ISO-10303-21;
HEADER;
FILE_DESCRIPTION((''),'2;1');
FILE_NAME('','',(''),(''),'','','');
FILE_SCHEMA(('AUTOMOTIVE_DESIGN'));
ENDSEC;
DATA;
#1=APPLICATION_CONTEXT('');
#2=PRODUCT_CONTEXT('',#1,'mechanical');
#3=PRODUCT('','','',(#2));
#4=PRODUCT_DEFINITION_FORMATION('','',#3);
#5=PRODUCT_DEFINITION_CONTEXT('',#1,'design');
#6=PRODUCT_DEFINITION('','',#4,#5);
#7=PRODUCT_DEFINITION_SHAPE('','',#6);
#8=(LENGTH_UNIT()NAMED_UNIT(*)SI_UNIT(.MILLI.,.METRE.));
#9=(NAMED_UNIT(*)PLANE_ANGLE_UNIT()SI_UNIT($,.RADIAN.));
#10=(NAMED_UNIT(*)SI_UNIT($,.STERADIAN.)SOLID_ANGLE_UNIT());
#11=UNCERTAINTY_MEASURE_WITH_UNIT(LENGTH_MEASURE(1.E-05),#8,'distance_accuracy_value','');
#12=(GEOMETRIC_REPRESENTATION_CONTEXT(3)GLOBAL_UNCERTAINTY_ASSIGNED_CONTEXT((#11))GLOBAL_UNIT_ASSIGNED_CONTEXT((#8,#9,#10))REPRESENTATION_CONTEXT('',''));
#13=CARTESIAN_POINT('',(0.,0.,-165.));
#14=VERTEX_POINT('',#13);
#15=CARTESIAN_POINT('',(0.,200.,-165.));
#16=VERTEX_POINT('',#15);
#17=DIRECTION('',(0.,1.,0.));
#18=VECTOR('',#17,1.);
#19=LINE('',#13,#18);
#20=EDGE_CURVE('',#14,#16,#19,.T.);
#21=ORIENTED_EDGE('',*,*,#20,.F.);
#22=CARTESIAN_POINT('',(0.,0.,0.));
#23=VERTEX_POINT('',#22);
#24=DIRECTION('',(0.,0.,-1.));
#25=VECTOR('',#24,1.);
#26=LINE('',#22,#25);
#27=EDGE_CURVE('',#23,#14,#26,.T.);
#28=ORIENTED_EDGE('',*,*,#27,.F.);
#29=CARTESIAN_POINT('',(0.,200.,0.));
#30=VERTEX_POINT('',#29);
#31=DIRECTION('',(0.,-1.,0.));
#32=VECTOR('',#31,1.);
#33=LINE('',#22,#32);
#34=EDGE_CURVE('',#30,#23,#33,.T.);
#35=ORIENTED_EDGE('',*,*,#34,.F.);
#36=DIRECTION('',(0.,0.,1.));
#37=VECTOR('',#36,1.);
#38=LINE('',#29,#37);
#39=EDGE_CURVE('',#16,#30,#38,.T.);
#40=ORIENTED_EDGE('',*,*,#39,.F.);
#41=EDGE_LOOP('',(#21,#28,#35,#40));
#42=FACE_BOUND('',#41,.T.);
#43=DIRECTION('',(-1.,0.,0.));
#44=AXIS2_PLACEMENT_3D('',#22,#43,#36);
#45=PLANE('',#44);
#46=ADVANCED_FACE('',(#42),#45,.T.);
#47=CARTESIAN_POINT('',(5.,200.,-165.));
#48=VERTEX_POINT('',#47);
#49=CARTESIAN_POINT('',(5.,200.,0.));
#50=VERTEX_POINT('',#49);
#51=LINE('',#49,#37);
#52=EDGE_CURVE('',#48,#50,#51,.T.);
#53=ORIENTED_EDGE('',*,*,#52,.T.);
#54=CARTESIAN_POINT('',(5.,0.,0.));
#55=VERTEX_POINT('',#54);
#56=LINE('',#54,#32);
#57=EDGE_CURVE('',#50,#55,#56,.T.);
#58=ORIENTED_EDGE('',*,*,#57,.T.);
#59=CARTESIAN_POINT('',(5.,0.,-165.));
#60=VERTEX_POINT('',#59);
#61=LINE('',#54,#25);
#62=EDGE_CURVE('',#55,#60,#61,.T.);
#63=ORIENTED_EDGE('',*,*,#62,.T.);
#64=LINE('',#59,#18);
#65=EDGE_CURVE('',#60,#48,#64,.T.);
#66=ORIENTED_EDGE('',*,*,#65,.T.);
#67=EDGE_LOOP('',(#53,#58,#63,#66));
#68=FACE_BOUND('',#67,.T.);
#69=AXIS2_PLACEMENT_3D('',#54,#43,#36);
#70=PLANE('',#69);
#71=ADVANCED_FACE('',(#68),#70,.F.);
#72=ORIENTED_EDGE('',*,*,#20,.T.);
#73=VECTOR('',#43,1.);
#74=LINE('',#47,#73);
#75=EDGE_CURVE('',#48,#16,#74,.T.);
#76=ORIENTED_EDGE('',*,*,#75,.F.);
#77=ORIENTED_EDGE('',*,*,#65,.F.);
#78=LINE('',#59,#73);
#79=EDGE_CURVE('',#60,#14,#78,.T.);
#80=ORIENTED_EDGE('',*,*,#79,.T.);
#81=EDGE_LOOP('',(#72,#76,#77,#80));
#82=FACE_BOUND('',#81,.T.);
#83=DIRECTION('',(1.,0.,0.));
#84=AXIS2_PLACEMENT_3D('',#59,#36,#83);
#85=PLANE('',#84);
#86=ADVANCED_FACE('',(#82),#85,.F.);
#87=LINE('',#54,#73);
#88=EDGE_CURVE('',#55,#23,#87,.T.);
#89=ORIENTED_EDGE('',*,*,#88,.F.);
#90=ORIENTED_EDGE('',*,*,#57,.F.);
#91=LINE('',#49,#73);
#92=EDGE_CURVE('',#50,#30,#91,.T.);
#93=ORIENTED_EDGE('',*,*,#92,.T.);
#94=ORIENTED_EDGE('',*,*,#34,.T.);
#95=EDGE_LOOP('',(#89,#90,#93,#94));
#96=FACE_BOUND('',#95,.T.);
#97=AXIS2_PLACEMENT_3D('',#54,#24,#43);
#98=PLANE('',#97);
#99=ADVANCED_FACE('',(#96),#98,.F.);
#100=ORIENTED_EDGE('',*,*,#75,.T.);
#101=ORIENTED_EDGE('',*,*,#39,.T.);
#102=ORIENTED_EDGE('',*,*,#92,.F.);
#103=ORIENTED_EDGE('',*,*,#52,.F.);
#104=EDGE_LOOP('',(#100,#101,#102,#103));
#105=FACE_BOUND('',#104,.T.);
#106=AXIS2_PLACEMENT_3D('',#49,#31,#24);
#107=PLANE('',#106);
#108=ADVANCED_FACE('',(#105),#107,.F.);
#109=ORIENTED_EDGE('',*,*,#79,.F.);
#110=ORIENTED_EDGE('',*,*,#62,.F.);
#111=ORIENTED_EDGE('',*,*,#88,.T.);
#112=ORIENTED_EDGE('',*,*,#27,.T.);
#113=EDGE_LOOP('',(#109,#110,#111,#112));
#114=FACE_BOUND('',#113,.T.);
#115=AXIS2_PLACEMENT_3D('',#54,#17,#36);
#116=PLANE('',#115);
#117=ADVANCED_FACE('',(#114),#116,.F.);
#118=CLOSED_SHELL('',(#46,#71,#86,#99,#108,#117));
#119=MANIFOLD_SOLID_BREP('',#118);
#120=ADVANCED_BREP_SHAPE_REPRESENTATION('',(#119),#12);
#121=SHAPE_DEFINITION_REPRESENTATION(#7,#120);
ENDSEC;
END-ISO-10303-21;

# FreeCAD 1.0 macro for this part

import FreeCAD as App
import Part
import Sketcher
Q = App.Units.Quantity


def add_polygon(sketch, points):
    """Adds a closed chain of lines whose ends are joined by coincident constraints."""
    first, n = sketch.GeometryCount, len(points)
    for a, b in zip(points, points[1:] + points[:1]):
        sketch.addGeometry(Part.LineSegment(App.Vector(*a, 0), App.Vector(*b, 0)), False)
    for i in range(n):
        sketch.addConstraint(Sketcher.Constraint("Coincident", first + i, 2, first + (i + 1) % n, 1))

doc = App.newDocument("Part")
body = doc.addObject("PartDesign::Body", "Body")

sketch1 = body.newObject("Sketcher::SketchObject", "Sketch")
sketch1.AttachmentSupport = (doc.getObject("YZ_Plane"), [""])
sketch1.MapMode = "FlatFace"
add_polygon(sketch1, [(200, 0), (0, 0), (0, -165), (200, -165)])
sketch1.addConstraint(Sketcher.Constraint("Horizontal", 0))
sketch1.addConstraint(Sketcher.Constraint("Vertical", 1))
sketch1.addConstraint(Sketcher.Constraint("Horizontal", 2))
sketch1.addConstraint(Sketcher.Constraint("Vertical", 3))
sketch1.addConstraint(Sketcher.Constraint("Coincident", 0, 2, -1, 1))
sketch1.addConstraint(Sketcher.Constraint("DistanceX", 0, 2, 0, 1, Q("200 mm")))
sketch1.addConstraint(Sketcher.Constraint("DistanceY", 1, 2, 1, 1, Q("165 mm")))
pad1 = body.newObject("PartDesign::Pad", "Pad")
pad1.Profile = sketch1
pad1.Length = 5

doc.recompute()
